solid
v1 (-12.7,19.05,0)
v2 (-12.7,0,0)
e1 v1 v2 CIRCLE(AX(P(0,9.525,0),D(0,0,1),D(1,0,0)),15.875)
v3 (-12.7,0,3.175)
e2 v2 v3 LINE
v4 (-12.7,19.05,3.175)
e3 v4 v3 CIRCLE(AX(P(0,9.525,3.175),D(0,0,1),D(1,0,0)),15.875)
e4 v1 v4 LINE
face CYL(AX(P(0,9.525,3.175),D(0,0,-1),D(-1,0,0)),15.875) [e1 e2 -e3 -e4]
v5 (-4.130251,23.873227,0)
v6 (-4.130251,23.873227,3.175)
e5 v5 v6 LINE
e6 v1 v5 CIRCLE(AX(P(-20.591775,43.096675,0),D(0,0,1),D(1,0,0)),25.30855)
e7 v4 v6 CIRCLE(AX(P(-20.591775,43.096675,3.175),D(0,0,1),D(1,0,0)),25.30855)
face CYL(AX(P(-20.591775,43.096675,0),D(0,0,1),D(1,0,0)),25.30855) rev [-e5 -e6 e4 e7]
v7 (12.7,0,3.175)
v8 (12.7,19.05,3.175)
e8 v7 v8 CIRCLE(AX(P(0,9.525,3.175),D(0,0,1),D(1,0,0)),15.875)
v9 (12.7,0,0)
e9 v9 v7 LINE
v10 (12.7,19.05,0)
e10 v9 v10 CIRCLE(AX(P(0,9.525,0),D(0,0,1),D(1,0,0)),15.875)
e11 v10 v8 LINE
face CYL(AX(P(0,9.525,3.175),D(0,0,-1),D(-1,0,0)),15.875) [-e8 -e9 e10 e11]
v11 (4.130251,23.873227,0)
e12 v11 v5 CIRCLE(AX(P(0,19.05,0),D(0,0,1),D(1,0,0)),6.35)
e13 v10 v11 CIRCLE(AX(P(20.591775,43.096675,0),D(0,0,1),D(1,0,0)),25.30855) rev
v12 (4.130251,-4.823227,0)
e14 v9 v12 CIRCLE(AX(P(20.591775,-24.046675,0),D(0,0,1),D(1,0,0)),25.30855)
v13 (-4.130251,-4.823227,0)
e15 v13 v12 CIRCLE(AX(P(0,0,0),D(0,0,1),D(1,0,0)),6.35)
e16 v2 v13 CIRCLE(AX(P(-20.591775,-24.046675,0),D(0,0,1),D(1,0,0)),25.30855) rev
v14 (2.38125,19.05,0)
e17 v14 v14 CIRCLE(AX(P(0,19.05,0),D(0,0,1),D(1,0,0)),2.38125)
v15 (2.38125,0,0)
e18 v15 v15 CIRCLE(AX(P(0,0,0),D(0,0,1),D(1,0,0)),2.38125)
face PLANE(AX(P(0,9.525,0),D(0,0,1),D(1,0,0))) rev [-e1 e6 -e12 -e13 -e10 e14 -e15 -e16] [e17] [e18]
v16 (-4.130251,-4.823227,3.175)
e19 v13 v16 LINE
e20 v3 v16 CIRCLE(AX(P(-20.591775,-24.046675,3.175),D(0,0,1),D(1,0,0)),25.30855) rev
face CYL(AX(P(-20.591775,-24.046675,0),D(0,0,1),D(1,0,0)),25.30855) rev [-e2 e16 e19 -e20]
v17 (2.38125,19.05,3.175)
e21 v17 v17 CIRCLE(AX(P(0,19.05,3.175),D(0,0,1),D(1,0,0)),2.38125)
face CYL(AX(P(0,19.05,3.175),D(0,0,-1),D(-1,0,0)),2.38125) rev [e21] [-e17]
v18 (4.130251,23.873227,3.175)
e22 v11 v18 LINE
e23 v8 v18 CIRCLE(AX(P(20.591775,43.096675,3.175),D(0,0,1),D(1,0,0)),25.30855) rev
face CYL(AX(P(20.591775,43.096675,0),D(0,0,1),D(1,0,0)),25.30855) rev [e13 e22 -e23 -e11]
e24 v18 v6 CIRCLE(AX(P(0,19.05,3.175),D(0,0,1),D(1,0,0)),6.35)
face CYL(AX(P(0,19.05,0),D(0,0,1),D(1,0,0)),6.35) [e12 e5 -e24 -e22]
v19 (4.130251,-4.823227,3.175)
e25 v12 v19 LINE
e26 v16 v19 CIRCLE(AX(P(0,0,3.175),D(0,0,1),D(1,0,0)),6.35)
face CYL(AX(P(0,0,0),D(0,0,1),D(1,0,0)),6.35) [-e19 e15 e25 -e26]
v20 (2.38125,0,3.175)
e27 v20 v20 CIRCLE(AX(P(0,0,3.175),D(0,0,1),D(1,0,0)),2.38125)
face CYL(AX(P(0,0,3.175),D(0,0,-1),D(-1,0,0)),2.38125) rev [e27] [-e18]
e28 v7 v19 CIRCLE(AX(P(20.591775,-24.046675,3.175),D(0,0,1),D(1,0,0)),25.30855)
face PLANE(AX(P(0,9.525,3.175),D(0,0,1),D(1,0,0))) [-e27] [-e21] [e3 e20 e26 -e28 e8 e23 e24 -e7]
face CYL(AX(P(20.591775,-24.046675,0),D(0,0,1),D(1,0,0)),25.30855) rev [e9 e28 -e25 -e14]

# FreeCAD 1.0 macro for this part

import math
import FreeCAD as App
import Part
import Sketcher
Q = App.Units.Quantity

doc = App.newDocument("Part")
params = doc.addObject("Spreadsheet::Sheet", "Params")
for row, (alias, value) in enumerate([
    ("sketch1_diameter", "1.25 in"),
    ("sketch1_diameter2", "0.1875 in"),
    ("pad1_length", "0.125 in"),
    ("sketch2_radius", "0.25 in"),
    ("sketch2_radius2", "0.625 in"),
    ("pocket1_length", "31.120695 mm"),
], start=1):
    params.set(f"A{row}", alias)
    params.set(f"B{row}", "=" + value)
    params.setAlias(f"B{row}", alias)

body = doc.addObject("PartDesign::Body", "Body")

# Sketch on XY plane
sketch1 = doc.addObject("Sketcher::SketchObject", "Sketch")
body.addObject(sketch1)
sketch1.AttachmentSupport = (doc.XY_Plane, [""])
sketch1.MapMode = "FlatFace"
sketch1.addGeometry([
    Part.Circle(App.Vector(0, 9.525, 0), App.Vector(0, 0, 1), 15.875),
    Part.Circle(App.Vector(0, 0, 0), App.Vector(0, 0, 1), 2.38125),
    Part.Circle(App.Vector(0, 19.05, 0), App.Vector(0, 0, 1), 2.38125),
], False)
sketch1.addConstraint([
    Sketcher.Constraint("Coincident", 1, 3, -1, 1),
    Sketcher.Constraint("Equal", 1, 2),
    Sketcher.Constraint("PointOnObject", 0, 3, -2),
    Sketcher.Constraint("PointOnObject", 2, 3, -2),
    Sketcher.Constraint("Diameter", 0, Q("1.25 in")),
    Sketcher.Constraint("Diameter", 1, Q("0.1875 in")),
    Sketcher.Constraint("DistanceY", -1, 1, 2, 3, Q("0.75 in")),
    Sketcher.Constraint("DistanceY", -1, 1, 0, 3, Q("0.375 in")),
])
sketch1.setExpression("Constraints[4]", "Params.sketch1_diameter")
sketch1.setExpression("Constraints[5]", "Params.sketch1_diameter2")
pad1 = doc.addObject("PartDesign::Pad", "Pad")
body.addObject(pad1)
pad1.Profile = sketch1
pad1.setExpression("Length", "Params.pad1_length")

# Sketch on XY plane
sketch2 = doc.addObject("Sketcher::SketchObject", "Sketch001")
body.addObject(sketch2)
sketch2.AttachmentSupport = (doc.XY_Plane, [""])
sketch2.MapMode = "FlatFace"
sketch2.AttachmentOffset = App.Placement(App.Vector(0, 0, 0.125 * 25.4), App.Rotation())
sketch2.addGeometry([
    Part.Circle(App.Vector(0, 9.525, 0), App.Vector(0, 0, 1), 26.685861),  # 0
    Part.ArcOfCircle(Part.Circle(App.Vector(0, 9.525, 0), App.Vector(0, 0, 1), 15.875), math.radians(-36.869898), math.radians(36.869898)),  # 1
    Part.ArcOfCircle(Part.Circle(App.Vector(20.591775, -24.046675, 0), App.Vector(0, 0, 1), 25.30855), math.radians(108.169096), math.radians(130.574278)),  # 2
    Part.ArcOfCircle(Part.Circle(App.Vector(0, 0, 0), App.Vector(0, 0, 1), 6.35), math.radians(-90), math.radians(-49.425722)),  # 3
    Part.ArcOfCircle(Part.Circle(App.Vector(0, 0, 0), App.Vector(0, 0, 1), 6.35), math.radians(-130.574278), math.radians(-90)),  # 4
    Part.ArcOfCircle(Part.Circle(App.Vector(-20.591775, -24.046675, 0), App.Vector(0, 0, 1), 25.30855), math.radians(49.425722), math.radians(71.830904)),  # 5
    Part.ArcOfCircle(Part.Circle(App.Vector(0, 9.525, 0), App.Vector(0, 0, 1), 15.875), math.radians(143.130102), math.radians(216.869898)),  # 6
    Part.ArcOfCircle(Part.Circle(App.Vector(-20.591775, 43.096675, 0), App.Vector(0, 0, 1), 25.30855), math.radians(-71.830904), math.radians(-49.425722)),  # 7
    Part.ArcOfCircle(Part.Circle(App.Vector(0, 19.05, 0), App.Vector(0, 0, 1), 6.35), math.radians(90), math.radians(130.574278)),  # 8
    Part.ArcOfCircle(Part.Circle(App.Vector(0, 19.05, 0), App.Vector(0, 0, 1), 6.35), math.radians(49.425722), math.radians(90)),  # 9
    Part.ArcOfCircle(Part.Circle(App.Vector(20.591775, 43.096675, 0), App.Vector(0, 0, 1), 25.30855), math.radians(-130.574278), math.radians(-108.169096)),  # 10
], False)
sketch2.addConstraint([
    Sketcher.Constraint("Coincident", 1, 1, 2, 1),
    Sketcher.Constraint("Tangent", 2, 2, 3, 2),
    Sketcher.Constraint("Tangent", 3, 1, 4, 2),
    Sketcher.Constraint("Tangent", 4, 1, 5, 1),
    Sketcher.Constraint("Coincident", 5, 2, 6, 2),
    Sketcher.Constraint("Coincident", 6, 1, 7, 1),
    Sketcher.Constraint("Tangent", 7, 2, 8, 2),
    Sketcher.Constraint("Tangent", 8, 1, 9, 2),
    Sketcher.Constraint("Tangent", 9, 1, 10, 1),
    Sketcher.Constraint("Coincident", 10, 2, 1, 2),
    Sketcher.Constraint("Coincident", 3, 3, -1, 1),
    Sketcher.Constraint("Coincident", 1, 3, 0, 3),
    Sketcher.Constraint("Coincident", 6, 3, 0, 3),
    Sketcher.Constraint("Equal", 3, 4),
    Sketcher.Constraint("Equal", 2, 5),
    Sketcher.Constraint("Equal", 1, 6),
    Sketcher.Constraint("Equal", 5, 7),
    Sketcher.Constraint("Equal", 4, 8),
    Sketcher.Constraint("Equal", 8, 9),
    Sketcher.Constraint("Equal", 7, 10),
    Sketcher.Constraint("Symmetric", 1, 1, 5, 2, -1, 1),
    Sketcher.Constraint("Symmetric", 7, 3, 10, 3, -2),
    Sketcher.Constraint("PointOnObject", 0, 3, -2),
    Sketcher.Constraint("PointOnObject", 3, 1, -2),
    Sketcher.Constraint("PointOnObject", 8, 1, -2),
    Sketcher.Constraint("Horizontal", 9, 3, 6, 1),
    Sketcher.Constraint("Vertical", 5, 3, 7, 3),
    Sketcher.Constraint("Radius", 3, Q("0.25 in")),
    Sketcher.Constraint("DistanceY", -1, 1, 8, 1, Q("1 in")),
    Sketcher.Constraint("Radius", 1, Q("0.625 in")),
    Sketcher.Constraint("Radius", 2, Q("25.30855 mm")),
    Sketcher.Constraint("Diameter", 0, Q("53.371723 mm")),
])
sketch2.setExpression("Constraints[27]", "Params.sketch2_radius")
sketch2.setExpression("Constraints[29]", "Params.sketch2_radius2")
pocket1 = doc.addObject("PartDesign::Pocket", "Pocket")
body.addObject(pocket1)
pocket1.Profile = sketch2
pocket1.setExpression("Length", "Params.pocket1_length")

doc.recompute()
